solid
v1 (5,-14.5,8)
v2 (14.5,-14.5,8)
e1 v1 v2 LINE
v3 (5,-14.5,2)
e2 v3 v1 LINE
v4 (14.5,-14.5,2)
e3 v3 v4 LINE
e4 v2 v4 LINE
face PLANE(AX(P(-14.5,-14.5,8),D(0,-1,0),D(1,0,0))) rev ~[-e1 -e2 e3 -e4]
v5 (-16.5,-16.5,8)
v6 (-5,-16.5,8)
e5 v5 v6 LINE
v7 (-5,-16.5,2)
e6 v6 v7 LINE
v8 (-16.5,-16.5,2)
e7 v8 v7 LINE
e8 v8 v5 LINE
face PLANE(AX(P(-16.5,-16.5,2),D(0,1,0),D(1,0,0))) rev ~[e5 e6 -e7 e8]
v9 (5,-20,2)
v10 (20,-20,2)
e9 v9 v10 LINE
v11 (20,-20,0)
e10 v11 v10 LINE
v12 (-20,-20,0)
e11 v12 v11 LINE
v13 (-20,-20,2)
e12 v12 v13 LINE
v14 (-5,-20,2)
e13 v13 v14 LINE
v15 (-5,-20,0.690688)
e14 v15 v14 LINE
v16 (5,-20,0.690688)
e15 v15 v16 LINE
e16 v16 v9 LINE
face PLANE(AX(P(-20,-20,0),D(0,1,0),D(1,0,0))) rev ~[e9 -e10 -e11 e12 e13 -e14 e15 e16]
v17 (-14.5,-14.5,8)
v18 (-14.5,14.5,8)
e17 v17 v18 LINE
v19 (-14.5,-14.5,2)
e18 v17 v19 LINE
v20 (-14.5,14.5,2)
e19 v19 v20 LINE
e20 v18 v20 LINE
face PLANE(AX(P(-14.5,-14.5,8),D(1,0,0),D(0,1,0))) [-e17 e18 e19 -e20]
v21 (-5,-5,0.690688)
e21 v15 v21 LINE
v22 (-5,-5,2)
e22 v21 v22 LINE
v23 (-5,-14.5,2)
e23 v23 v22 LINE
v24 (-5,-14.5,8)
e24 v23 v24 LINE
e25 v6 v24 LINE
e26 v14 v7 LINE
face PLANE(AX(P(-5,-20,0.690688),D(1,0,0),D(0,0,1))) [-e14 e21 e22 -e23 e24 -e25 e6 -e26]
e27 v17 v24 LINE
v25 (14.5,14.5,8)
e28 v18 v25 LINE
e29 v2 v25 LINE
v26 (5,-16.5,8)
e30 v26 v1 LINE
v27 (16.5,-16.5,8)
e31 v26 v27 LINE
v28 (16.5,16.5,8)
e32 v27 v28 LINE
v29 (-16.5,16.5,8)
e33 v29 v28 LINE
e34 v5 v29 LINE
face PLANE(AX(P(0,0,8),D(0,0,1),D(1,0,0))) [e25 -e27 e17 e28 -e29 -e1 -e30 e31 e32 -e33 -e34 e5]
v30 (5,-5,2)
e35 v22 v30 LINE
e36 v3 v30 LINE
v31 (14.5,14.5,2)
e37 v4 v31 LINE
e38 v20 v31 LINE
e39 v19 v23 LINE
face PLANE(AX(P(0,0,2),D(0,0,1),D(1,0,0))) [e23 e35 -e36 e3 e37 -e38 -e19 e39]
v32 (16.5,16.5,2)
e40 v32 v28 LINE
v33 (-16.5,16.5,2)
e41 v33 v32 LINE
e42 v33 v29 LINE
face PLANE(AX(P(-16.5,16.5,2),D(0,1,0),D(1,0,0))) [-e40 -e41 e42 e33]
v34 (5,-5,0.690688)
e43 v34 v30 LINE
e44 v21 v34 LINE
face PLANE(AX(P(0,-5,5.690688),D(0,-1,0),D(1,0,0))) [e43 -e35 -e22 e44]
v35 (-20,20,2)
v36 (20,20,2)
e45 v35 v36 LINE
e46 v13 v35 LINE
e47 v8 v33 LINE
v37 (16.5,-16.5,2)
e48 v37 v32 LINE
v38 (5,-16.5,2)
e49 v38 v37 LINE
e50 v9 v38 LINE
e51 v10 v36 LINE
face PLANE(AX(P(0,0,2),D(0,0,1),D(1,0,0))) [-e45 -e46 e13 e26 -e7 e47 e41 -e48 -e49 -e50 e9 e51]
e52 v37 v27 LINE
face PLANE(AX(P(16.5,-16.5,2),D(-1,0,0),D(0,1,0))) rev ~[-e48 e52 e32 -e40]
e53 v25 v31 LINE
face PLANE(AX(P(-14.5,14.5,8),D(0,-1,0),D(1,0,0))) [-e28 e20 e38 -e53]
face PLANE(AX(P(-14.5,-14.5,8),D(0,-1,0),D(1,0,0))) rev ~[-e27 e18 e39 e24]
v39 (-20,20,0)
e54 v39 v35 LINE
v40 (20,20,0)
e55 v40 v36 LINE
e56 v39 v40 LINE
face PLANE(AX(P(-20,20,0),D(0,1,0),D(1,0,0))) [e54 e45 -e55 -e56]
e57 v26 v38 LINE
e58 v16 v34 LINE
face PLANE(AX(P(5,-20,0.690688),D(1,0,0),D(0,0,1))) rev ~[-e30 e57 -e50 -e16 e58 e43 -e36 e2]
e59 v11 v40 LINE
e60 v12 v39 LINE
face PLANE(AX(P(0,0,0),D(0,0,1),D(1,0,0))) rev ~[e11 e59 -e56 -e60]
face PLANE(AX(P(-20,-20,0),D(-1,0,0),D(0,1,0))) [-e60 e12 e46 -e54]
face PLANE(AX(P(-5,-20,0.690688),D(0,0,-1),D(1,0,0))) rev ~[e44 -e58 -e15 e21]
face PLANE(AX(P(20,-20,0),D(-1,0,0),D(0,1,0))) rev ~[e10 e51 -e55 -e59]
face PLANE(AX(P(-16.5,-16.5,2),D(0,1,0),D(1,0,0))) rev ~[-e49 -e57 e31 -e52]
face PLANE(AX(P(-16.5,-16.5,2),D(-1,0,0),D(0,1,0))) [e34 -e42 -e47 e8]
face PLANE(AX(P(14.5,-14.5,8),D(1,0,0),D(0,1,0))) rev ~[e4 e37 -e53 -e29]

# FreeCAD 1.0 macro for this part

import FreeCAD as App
import Part
import Sketcher


def add_polygon(sketch, points):
    """Adds a closed chain of lines whose ends are joined by coincident constraints."""
    first, n = sketch.GeometryCount, len(points)
    for a, b in zip(points, points[1:] + points[:1]):
        sketch.addGeometry(Part.LineSegment(App.Vector(*a, 0), App.Vector(*b, 0)), False)
    for i in range(n):
        sketch.addConstraint(Sketcher.Constraint("Coincident", first + i, 2, first + (i + 1) % n, 1))

doc = App.newDocument("Part")
params = doc.addObject("Spreadsheet::Sheet", "Params")
for row, (alias, value) in enumerate([
    ("sketch1_width", "40 mm"),
    ("pad1_length", "2 mm"),
    ("sketch2_width", "33 mm"),
    ("pad2_length", "6 mm"),
    ("sketch3_width", "29 mm"),
    ("pocket1_length", "6 mm"),
    ("sketch4_width", "10 mm"),
    ("pocket2_length", "15 mm"),
], start=1):
    params.set(f"A{row}", alias)
    params.set(f"B{row}", "=" + value)
    params.setAlias(f"B{row}", alias)

body = doc.addObject("PartDesign::Body", "Body")

# Sketch on XY plane
sketch1 = doc.addObject("Sketcher::SketchObject", "Sketch")
body.addObject(sketch1)
sketch1.AttachmentSupport = (doc.XY_Plane, [""])
sketch1.MapMode = "FlatFace"
add_polygon(sketch1, [(-20, 20), (-20, -20), (20, -20), (20, 20)])  # lines 0-3
sketch1.addConstraint([
    Sketcher.Constraint("Vertical", 0),
    Sketcher.Constraint("Horizontal", 1),
    Sketcher.Constraint("Vertical", 2),
    Sketcher.Constraint("Horizontal", 3),
    Sketcher.Constraint("Symmetric", 0, 2, 2, 2, -1, 1),
    Sketcher.Constraint("Equal", 3, 0),
    Sketcher.Constraint("DistanceX", 1, 1, 1, 2, 40.0),
])
sketch1.setExpression("Constraints[10]", "Params.sketch1_width")
pad1 = doc.addObject("PartDesign::Pad", "Pad")
body.addObject(pad1)
pad1.Profile = sketch1
pad1.setExpression("Length", "Params.pad1_length")

# Sketch on XY plane
sketch2 = doc.addObject("Sketcher::SketchObject", "Sketch001")
body.addObject(sketch2)
sketch2.AttachmentSupport = (doc.XY_Plane, [""])
sketch2.MapMode = "FlatFace"
sketch2.AttachmentOffset = App.Placement(App.Vector(0, 0, 2), App.Rotation())
add_polygon(sketch2, [(-16.5, 16.5), (-16.5, -16.5), (16.5, -16.5), (16.5, 16.5)])  # lines 0-3
sketch2.addConstraint([
    Sketcher.Constraint("Vertical", 0),
    Sketcher.Constraint("Horizontal", 1),
    Sketcher.Constraint("Vertical", 2),
    Sketcher.Constraint("Horizontal", 3),
    Sketcher.Constraint("Symmetric", 0, 2, 2, 2, -1, 1),
    Sketcher.Constraint("Equal", 3, 0),
    Sketcher.Constraint("DistanceX", 1, 1, 1, 2, 33.0),
])
sketch2.setExpression("Constraints[10]", "Params.sketch2_width")
pad2 = doc.addObject("PartDesign::Pad", "Pad001")
body.addObject(pad2)
pad2.Profile = sketch2
pad2.setExpression("Length", "Params.pad2_length")

# Sketch on XY plane
sketch3 = doc.addObject("Sketcher::SketchObject", "Sketch002")
body.addObject(sketch3)
sketch3.AttachmentSupport = (doc.XY_Plane, [""])
sketch3.MapMode = "FlatFace"
sketch3.AttachmentOffset = App.Placement(App.Vector(0, 0, 8), App.Rotation())
add_polygon(sketch3, [(-14.5, 14.5), (-14.5, -14.5), (14.5, -14.5), (14.5, 14.5)])  # lines 0-3
sketch3.addConstraint([
    Sketcher.Constraint("Vertical", 0),
    Sketcher.Constraint("Horizontal", 1),
    Sketcher.Constraint("Vertical", 2),
    Sketcher.Constraint("Horizontal", 3),
    Sketcher.Constraint("Symmetric", 0, 2, 2, 2, -1, 1),
    Sketcher.Constraint("Equal", 3, 0),
    Sketcher.Constraint("DistanceX", 1, 1, 1, 2, 29.0),
])
sketch3.setExpression("Constraints[10]", "Params.sketch3_width")
pocket1 = doc.addObject("PartDesign::Pocket", "Pocket")
body.addObject(pocket1)
pocket1.Profile = sketch3
pocket1.setExpression("Length", "Params.pocket1_length")

# Sketch on XZ plane
sketch4 = doc.addObject("Sketcher::SketchObject", "Sketch003")
body.addObject(sketch4)
sketch4.AttachmentSupport = (doc.XZ_Plane, [""])
sketch4.MapMode = "FlatFace"
sketch4.AttachmentOffset = App.Placement(App.Vector(0, 0, 20), App.Rotation())
add_polygon(sketch4, [(-5, 10.690688), (-5, 0.690688), (5, 0.690688), (5, 10.690688)])  # lines 0-3
sketch4.addConstraint([
    Sketcher.Constraint("Vertical", 0),
    Sketcher.Constraint("Horizontal", 1),
    Sketcher.Constraint("Vertical", 2),
    Sketcher.Constraint("Horizontal", 3),
    Sketcher.Constraint("Equal", 3, 0),
    Sketcher.Constraint("DistanceX", 1, 1, 1, 2, 10.0),
    Sketcher.Constraint("DistanceX", 0, 2, -1, 1, 5.0),
    Sketcher.Constraint("DistanceY", -1, 1, 0, 2, 0.690688),
])
sketch4.setExpression("Constraints[9]", "Params.sketch4_width")
pocket2 = doc.addObject("PartDesign::Pocket", "Pocket001")
body.addObject(pocket2)
pocket2.Profile = sketch4
pocket2.setExpression("Length", "Params.pocket2_length")

doc.recompute()
